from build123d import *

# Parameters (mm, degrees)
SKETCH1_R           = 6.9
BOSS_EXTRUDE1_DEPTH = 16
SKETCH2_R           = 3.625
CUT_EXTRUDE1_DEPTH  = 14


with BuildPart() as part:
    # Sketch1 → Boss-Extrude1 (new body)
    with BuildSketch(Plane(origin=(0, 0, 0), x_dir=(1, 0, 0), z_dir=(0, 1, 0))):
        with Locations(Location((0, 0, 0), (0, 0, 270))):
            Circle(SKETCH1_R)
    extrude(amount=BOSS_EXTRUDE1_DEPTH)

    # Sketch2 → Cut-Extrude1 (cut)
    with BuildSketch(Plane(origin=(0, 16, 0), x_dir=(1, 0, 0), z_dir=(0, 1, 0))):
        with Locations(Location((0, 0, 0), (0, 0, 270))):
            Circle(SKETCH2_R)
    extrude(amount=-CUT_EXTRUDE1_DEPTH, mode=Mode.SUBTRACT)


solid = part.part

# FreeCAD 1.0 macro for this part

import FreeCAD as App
import Part
import Sketcher

V = App.Vector

doc = App.newDocument("Part")
params = doc.addObject("Spreadsheet::Sheet", "Params")
for row, (alias, value) in enumerate([
    ("sketch1_diameter", "13.8 mm"),
    ("pad1_length", "16 mm"),
    ("sketch2_diameter", "7.25 mm"),
    ("pocket1_length", "14 mm"),
], start=1):
    params.set(f"A{row}", alias)
    params.set(f"B{row}", "=" + value)
    params.setAlias(f"B{row}", alias)

body = doc.addObject("PartDesign::Body", "Body")

# Sketch on XZ plane
sketch1 = body.newObject("Sketcher::SketchObject", "Sketch")
sketch1.AttachmentSupport = (doc.getObject("XZ_Plane"), [""])
sketch1.MapMode = "FlatFace"
sketch1.addGeometry(Part.Circle(V(0, 0, 0), V(0, 0, 1), 6.9), False)
sketch1.addConstraint([
    Sketcher.Constraint("Coincident", 0, 3, -1, 1),
    Sketcher.Constraint("Diameter", 0, 13.8),
])
sketch1.setExpression("Constraints[1]", "Params.sketch1_diameter")
pad1 = body.newObject("PartDesign::Pad", "Pad")
pad1.Profile = sketch1
pad1.setExpression("Length", "Params.pad1_length")
pad1.Reversed = True

# Sketch on XZ plane
sketch2 = body.newObject("Sketcher::SketchObject", "Sketch001")
sketch2.AttachmentSupport = (doc.getObject("XZ_Plane"), [""])
sketch2.MapMode = "FlatFace"
sketch2.AttachmentOffset = App.Placement(V(0, 0, -16), App.Rotation())
sketch2.addGeometry(Part.Circle(V(0, 0, 0), V(0, 0, 1), 3.625), False)
sketch2.addConstraint([
    Sketcher.Constraint("Coincident", 0, 3, -1, 1),
    Sketcher.Constraint("Diameter", 0, 7.25),
])
sketch2.setExpression("Constraints[1]", "Params.sketch2_diameter")
pocket1 = body.newObject("PartDesign::Pocket", "Pocket")
pocket1.Profile = sketch2
pocket1.setExpression("Length", "Params.pocket1_length")
pocket1.Reversed = True

doc.recompute()
